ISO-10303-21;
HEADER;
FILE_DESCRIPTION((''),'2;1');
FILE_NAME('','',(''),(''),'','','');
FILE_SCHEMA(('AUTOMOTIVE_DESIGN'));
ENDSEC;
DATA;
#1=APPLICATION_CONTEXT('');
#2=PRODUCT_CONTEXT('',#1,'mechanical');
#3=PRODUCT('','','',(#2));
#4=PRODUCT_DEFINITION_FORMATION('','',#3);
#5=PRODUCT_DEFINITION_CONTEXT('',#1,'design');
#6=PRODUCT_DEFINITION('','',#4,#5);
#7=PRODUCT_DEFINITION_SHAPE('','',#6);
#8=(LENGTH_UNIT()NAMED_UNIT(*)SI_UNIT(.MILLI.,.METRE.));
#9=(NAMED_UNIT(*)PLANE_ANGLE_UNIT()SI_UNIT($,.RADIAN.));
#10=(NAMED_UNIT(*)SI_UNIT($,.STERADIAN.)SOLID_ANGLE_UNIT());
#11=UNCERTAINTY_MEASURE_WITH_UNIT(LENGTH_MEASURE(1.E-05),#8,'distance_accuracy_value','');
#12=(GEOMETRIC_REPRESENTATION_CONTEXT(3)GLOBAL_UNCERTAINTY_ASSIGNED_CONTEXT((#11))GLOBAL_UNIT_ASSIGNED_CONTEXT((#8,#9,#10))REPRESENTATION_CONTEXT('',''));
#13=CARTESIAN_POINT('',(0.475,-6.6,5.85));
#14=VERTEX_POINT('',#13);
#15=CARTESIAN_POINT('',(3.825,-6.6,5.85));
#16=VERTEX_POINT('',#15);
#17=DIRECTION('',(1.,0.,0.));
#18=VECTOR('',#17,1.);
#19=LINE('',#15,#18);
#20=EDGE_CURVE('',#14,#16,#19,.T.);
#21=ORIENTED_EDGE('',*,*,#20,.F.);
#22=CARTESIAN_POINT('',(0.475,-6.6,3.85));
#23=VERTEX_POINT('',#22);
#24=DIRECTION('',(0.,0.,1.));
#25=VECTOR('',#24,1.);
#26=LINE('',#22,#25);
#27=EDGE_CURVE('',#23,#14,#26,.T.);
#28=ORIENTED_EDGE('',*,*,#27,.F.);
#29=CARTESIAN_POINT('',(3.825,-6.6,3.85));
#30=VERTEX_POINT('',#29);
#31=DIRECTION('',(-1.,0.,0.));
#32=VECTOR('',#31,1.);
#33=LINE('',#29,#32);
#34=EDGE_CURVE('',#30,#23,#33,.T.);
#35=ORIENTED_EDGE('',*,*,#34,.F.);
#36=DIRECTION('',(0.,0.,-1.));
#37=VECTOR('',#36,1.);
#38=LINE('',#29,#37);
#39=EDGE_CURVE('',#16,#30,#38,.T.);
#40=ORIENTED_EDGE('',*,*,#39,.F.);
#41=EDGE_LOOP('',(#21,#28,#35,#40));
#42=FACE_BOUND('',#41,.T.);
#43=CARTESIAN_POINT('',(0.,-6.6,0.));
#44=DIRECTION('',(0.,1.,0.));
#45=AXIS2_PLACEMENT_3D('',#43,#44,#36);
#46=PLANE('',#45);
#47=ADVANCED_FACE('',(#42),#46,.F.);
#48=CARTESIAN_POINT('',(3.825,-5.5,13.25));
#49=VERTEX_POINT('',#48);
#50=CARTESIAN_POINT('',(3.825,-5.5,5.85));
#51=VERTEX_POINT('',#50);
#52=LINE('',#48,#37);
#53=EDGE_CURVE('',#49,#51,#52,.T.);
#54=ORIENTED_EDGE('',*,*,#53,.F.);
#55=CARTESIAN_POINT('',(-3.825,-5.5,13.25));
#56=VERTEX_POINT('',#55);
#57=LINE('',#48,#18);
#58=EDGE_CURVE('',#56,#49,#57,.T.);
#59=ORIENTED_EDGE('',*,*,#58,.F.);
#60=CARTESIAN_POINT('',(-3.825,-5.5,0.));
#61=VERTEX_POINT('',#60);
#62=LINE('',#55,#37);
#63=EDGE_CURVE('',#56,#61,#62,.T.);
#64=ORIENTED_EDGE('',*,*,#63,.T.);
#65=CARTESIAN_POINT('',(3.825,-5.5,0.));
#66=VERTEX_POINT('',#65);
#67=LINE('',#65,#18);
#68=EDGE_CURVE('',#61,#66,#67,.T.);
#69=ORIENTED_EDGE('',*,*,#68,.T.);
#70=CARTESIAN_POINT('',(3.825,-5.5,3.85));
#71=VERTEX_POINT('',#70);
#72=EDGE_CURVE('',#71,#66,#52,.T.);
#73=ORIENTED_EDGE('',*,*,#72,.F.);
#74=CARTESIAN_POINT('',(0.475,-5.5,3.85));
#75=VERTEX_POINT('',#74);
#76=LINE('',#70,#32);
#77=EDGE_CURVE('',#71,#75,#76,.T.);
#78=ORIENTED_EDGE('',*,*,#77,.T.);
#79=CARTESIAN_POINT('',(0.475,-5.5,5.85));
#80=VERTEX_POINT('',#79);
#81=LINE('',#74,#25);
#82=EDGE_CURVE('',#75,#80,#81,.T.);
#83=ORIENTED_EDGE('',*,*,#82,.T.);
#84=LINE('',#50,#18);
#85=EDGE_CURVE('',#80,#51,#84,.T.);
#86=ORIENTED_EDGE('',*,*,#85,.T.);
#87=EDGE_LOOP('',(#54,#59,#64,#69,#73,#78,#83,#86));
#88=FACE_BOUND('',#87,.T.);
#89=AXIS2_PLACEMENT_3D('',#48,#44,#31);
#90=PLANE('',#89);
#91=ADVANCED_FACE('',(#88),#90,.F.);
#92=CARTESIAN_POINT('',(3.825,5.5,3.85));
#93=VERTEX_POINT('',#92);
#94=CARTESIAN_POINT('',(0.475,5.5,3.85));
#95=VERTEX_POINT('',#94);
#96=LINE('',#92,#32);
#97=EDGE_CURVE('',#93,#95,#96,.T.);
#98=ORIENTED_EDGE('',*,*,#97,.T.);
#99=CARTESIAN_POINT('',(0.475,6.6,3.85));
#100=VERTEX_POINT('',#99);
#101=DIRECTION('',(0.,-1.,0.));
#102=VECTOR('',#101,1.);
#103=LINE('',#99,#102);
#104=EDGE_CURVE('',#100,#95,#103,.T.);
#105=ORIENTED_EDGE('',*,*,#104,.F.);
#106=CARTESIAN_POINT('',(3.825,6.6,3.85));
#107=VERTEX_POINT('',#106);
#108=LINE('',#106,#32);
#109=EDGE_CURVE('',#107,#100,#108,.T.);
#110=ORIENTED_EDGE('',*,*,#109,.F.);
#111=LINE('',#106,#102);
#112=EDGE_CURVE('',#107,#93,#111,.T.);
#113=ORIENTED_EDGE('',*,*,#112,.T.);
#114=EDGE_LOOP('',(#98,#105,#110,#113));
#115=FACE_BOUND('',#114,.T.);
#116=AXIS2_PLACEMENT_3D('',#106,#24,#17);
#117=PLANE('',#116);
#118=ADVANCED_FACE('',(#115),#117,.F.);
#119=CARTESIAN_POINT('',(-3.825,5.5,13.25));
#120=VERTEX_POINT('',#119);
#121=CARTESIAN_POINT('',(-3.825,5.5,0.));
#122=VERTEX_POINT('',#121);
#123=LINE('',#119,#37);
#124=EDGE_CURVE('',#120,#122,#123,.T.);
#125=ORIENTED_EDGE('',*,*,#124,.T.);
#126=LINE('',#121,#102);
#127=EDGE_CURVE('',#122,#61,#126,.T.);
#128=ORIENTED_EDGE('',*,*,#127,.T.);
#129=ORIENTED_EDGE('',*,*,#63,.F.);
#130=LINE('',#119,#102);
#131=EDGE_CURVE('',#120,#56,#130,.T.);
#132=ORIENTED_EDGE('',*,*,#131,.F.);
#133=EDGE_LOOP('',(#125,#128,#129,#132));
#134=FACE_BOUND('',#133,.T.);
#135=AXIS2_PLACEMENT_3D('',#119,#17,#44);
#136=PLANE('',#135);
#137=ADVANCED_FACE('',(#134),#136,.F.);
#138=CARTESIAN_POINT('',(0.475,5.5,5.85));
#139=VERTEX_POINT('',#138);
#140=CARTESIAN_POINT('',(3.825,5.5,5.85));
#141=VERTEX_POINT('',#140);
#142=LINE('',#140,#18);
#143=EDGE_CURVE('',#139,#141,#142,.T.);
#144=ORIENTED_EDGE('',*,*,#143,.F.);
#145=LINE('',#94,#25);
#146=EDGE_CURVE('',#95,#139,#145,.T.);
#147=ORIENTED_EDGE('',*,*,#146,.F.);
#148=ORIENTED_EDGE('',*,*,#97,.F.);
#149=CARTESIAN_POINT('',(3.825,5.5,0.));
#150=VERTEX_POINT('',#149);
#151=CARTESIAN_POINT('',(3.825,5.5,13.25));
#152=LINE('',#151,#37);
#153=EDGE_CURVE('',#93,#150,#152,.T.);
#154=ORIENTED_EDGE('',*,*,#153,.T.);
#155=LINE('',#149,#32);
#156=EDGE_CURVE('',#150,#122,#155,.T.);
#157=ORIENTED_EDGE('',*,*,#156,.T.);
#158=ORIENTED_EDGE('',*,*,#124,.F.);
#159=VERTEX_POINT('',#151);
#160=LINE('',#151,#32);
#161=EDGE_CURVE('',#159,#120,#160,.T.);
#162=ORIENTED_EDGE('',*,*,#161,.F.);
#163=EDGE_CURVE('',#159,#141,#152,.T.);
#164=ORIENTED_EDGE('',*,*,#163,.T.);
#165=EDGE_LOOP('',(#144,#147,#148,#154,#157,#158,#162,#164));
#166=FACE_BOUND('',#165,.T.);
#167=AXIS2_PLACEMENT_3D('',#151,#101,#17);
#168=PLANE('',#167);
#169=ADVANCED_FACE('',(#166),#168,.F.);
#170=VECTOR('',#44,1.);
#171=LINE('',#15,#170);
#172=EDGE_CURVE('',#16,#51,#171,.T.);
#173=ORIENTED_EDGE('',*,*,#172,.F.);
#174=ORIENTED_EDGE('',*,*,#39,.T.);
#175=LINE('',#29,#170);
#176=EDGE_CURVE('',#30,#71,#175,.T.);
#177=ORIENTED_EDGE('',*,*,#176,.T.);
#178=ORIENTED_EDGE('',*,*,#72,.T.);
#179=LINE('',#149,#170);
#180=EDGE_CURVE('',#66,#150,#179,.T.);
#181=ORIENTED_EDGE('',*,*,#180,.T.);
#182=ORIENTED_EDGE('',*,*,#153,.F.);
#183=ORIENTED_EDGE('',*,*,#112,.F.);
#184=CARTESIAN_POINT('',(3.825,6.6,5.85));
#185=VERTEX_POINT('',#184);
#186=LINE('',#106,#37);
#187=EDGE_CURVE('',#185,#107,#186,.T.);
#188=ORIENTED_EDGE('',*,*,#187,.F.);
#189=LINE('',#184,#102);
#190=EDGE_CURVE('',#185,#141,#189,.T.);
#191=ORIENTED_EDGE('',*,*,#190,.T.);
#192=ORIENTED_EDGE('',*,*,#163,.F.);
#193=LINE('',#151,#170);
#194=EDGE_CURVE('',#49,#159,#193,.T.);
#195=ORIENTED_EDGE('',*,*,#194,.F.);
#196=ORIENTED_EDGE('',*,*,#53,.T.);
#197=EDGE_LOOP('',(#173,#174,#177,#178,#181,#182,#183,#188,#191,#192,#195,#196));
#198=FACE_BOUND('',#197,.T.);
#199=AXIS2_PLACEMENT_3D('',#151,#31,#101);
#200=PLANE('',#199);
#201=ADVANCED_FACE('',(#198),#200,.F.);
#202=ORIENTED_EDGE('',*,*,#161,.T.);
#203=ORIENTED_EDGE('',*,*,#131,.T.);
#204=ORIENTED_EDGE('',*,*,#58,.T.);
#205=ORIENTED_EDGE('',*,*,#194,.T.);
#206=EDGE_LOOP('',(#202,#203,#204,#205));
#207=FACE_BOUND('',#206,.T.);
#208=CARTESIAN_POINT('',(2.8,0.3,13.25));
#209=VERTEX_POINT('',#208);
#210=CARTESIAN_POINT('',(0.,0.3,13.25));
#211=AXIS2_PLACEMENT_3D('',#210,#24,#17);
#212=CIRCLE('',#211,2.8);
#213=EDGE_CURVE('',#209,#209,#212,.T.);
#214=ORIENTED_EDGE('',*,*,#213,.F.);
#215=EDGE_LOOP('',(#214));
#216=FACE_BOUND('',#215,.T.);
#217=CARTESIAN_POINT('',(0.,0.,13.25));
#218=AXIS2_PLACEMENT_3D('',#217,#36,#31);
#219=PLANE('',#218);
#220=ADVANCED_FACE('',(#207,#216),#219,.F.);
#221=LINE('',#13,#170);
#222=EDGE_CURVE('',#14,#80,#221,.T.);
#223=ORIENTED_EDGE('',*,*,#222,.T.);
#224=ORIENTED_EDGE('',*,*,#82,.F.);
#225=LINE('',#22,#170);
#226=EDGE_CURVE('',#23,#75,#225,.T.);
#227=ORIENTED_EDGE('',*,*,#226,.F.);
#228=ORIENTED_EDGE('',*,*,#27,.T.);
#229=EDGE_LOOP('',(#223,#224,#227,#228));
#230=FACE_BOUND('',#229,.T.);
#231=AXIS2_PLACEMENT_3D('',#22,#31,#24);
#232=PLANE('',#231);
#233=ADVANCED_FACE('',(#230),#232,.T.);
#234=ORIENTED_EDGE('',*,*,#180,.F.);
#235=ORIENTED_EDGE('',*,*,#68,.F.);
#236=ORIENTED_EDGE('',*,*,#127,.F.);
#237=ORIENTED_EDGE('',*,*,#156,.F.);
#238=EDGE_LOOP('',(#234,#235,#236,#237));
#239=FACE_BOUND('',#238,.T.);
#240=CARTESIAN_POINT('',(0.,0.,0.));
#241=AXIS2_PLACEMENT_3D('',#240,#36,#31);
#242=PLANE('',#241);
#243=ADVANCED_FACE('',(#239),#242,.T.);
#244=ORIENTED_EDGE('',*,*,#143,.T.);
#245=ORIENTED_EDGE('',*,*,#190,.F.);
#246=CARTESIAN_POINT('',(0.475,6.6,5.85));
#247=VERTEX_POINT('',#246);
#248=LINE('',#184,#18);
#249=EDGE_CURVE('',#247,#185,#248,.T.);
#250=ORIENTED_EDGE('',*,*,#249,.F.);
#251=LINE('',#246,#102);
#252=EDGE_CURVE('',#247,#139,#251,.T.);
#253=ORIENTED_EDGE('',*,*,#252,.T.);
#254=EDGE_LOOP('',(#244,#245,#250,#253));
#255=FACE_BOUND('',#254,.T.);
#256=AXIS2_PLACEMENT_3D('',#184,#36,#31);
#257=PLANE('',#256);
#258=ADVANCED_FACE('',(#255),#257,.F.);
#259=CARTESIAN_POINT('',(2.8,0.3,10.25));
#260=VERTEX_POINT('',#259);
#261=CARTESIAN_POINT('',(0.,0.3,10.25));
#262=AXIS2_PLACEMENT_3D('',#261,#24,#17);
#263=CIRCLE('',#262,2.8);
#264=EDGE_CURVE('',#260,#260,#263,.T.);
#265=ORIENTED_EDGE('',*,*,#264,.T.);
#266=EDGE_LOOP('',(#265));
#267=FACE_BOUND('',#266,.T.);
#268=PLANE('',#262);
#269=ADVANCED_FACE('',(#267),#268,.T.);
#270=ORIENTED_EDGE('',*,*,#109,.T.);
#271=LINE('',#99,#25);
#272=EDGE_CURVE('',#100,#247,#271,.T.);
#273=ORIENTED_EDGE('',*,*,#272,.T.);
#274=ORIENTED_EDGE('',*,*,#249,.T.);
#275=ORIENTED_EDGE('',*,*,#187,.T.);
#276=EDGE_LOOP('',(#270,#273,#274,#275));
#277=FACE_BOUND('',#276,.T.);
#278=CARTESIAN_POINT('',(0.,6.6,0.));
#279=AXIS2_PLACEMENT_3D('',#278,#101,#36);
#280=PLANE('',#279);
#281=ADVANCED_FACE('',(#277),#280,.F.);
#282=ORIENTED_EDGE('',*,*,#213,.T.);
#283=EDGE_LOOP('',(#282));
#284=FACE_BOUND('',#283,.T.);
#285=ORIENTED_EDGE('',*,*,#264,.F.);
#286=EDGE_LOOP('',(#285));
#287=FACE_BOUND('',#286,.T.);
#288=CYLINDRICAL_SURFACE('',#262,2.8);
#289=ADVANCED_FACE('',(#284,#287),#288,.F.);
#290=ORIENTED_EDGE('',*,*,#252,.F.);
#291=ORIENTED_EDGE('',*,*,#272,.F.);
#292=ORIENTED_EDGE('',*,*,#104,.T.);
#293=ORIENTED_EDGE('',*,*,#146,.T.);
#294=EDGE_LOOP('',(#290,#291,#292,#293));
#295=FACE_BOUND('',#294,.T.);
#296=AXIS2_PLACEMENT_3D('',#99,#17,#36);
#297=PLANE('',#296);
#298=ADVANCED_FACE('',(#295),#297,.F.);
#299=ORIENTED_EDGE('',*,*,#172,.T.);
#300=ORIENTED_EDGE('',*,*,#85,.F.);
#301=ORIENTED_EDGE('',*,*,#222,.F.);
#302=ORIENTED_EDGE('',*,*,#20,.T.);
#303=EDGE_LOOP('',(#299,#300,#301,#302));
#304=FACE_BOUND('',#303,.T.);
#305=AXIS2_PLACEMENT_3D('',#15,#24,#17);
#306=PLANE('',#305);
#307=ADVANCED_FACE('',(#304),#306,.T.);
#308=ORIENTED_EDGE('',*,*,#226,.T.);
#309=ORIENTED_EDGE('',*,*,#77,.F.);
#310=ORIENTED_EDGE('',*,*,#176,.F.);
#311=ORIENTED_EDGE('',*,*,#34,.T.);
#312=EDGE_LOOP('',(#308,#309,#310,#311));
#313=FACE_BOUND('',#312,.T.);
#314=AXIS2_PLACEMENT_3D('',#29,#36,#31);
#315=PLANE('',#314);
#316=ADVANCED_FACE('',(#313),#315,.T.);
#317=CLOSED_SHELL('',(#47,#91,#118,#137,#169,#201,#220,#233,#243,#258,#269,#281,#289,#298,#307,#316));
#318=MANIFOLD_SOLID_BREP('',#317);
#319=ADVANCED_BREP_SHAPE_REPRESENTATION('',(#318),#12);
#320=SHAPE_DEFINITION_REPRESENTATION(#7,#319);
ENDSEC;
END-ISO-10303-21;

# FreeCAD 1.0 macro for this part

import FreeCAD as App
import Part
import Sketcher
Q = App.Units.Quantity

doc = App.newDocument("Part")
body = doc.addObject("PartDesign::Body", "Body")

# Sketch on XY plane
sketch1 = doc.addObject("Sketcher::SketchObject", "Sketch")
body.addObject(sketch1)
sketch1.AttachmentSupport = (doc.XY_Plane, [""])
sketch1.MapMode = "FlatFace"
sketch1.addGeometry([
    Part.LineSegment(App.Vector(-3.825, 5.5, 0), App.Vector(-3.825, -5.5, 0)),
    Part.LineSegment(App.Vector(-3.825, -5.5, 0), App.Vector(3.825, -5.5, 0)),
    Part.LineSegment(App.Vector(3.825, -5.5, 0), App.Vector(3.825, 5.5, 0)),
    Part.LineSegment(App.Vector(3.825, 5.5, 0), App.Vector(-3.825, 5.5, 0)),
], False)
sketch1.addConstraint([
    Sketcher.Constraint("Coincident", 0, 2, 1, 1),
    Sketcher.Constraint("Coincident", 1, 2, 2, 1),
    Sketcher.Constraint("Coincident", 2, 2, 3, 1),
    Sketcher.Constraint("Coincident", 3, 2, 0, 1),
    Sketcher.Constraint("Vertical", 0),
    Sketcher.Constraint("Horizontal", 1),
    Sketcher.Constraint("Vertical", 2),
    Sketcher.Constraint("Horizontal", 3),
    Sketcher.Constraint("Symmetric", 0, 2, 2, 2, -1, 1),
    Sketcher.Constraint("DistanceY", 0, 2, 0, 1, Q("11 mm")),
    Sketcher.Constraint("DistanceX", 1, 1, 1, 2, Q("7.65 mm")),
])
pad1 = doc.addObject("PartDesign::Pad", "Pad")
body.addObject(pad1)
pad1.Profile = sketch1
pad1.Length = 13.25

# Sketch on XZ plane
sketch2 = doc.addObject("Sketcher::SketchObject", "Sketch001")
body.addObject(sketch2)
sketch2.AttachmentSupport = (doc.XZ_Plane, [""])
sketch2.MapMode = "FlatFace"
sketch2.AttachmentOffset = App.Placement(App.Vector(0, 0, -5.5), App.Rotation())
sketch2.addGeometry([
    Part.LineSegment(App.Vector(0.475, 3.85, 0), App.Vector(0.475, 5.85, 0)),
    Part.LineSegment(App.Vector(0.475, 5.85, 0), App.Vector(3.825, 5.85, 0)),
    Part.LineSegment(App.Vector(3.825, 5.85, 0), App.Vector(3.825, 3.85, 0)),
    Part.LineSegment(App.Vector(3.825, 3.85, 0), App.Vector(0.475, 3.85, 0)),
], False)
sketch2.addConstraint([
    Sketcher.Constraint("Coincident", 0, 2, 1, 1),
    Sketcher.Constraint("Coincident", 1, 2, 2, 1),
    Sketcher.Constraint("Coincident", 2, 2, 3, 1),
    Sketcher.Constraint("Coincident", 3, 2, 0, 1),
    Sketcher.Constraint("Vertical", 0),
    Sketcher.Constraint("Horizontal", 1),
    Sketcher.Constraint("Vertical", 2),
    Sketcher.Constraint("Horizontal", 3),
    Sketcher.Constraint("DistanceY", 0, 1, 0, 2, Q("2 mm")),
    Sketcher.Constraint("DistanceX", 1, 1, 1, 2, Q("3.35 mm")),
    Sketcher.Constraint("DistanceY", -1, 1, 0, 2, Q("5.85 mm")),
    Sketcher.Constraint("DistanceX", -1, 1, 0, 2, Q("0.475 mm")),
])
pad2 = doc.addObject("PartDesign::Pad", "Pad001")
body.addObject(pad2)
pad2.Profile = sketch2
pad2.Length = 1.1
pad2.Reversed = True
doc.recompute()

mirrored = doc.addObject("PartDesign::Mirrored", "Mirrored")
body.addObject(mirrored)
mirrored.Originals = [pad2]
mirrored.MirrorPlane = (doc.XZ_Plane, [""])
body.Tip = mirrored

# Sketch on XY plane
sketch3 = doc.addObject("Sketcher::SketchObject", "Sketch002")
body.addObject(sketch3)
sketch3.AttachmentSupport = (doc.XY_Plane, [""])
sketch3.MapMode = "FlatFace"
sketch3.AttachmentOffset = App.Placement(App.Vector(0, 0, 13.25), App.Rotation())
sketch3.addGeometry(Part.Circle(App.Vector(0, 0.3, 0), App.Vector(0, 0, 1), 2.8), False)
sketch3.addConstraint([
    Sketcher.Constraint("PointOnObject", 0, 3, -2),
    Sketcher.Constraint("Diameter", 0, Q("5.6 mm")),
    Sketcher.Constraint("DistanceY", -1, 1, 0, 3, Q("0.3 mm")),
])
pocket1 = doc.addObject("PartDesign::Pocket", "Pocket")
body.addObject(pocket1)
pocket1.Profile = sketch3
pocket1.Length = 3

doc.recompute()
